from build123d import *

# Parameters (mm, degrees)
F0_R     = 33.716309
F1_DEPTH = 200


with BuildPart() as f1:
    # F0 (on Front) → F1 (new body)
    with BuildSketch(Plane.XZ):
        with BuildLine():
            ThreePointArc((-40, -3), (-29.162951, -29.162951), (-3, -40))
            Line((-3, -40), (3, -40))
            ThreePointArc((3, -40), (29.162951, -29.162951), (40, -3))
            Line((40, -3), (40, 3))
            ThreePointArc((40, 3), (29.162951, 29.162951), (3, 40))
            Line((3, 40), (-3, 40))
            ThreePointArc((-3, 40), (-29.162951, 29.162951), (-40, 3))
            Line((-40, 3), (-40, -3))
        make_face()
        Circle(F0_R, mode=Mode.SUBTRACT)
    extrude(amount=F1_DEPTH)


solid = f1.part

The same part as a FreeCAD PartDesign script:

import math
import FreeCAD as App
import Part
import Sketcher
from FreeCAD import Vector

doc = App.newDocument("Part")
body = doc.addObject("PartDesign::Body", "Body")

sketch1 = doc.addObject("Sketcher::SketchObject", "Sketch")
body.addObject(sketch1)
sketch1.AttachmentSupport = (doc.XZ_Plane, [""])
sketch1.MapMode = "FlatFace"
sketch1.addGeometry([
    Part.ArcOfCircle(Part.Circle(Vector(-3, -3, 0), Vector(0, 0, 1), 37), math.radians(180), math.radians(270)),
    Part.LineSegment(Vector(-3, -40, 0), Vector(3, -40, 0)),
    Part.ArcOfCircle(Part.Circle(Vector(3, -3, 0), Vector(0, 0, 1), 37), math.radians(-90), math.radians(0)),
    Part.LineSegment(Vector(40, -3, 0), Vector(40, 3, 0)),
    Part.ArcOfCircle(Part.Circle(Vector(3, 3, 0), Vector(0, 0, 1), 37), math.radians(0), math.radians(90)),
    Part.LineSegment(Vector(3, 40, 0), Vector(-3, 40, 0)),
    Part.ArcOfCircle(Part.Circle(Vector(-3, 3, 0), Vector(0, 0, 1), 37), math.radians(90), math.radians(180)),
    Part.LineSegment(Vector(-40, 3, 0), Vector(-40, -3, 0)),
    Part.Circle(Vector(0, 0, 0), Vector(0, 0, 1), 34),
], False)
sketch1.addConstraint([
    Sketcher.Constraint("Tangent", 0, 2, 1, 1),
    Sketcher.Constraint("Tangent", 1, 2, 2, 1),
    Sketcher.Constraint("Tangent", 2, 2, 3, 1),
    Sketcher.Constraint("Tangent", 3, 2, 4, 1),
    Sketcher.Constraint("Tangent", 4, 2, 5, 1),
    Sketcher.Constraint("Tangent", 5, 2, 6, 1),
    Sketcher.Constraint("Tangent", 6, 2, 7, 1),
    Sketcher.Constraint("Tangent", 7, 2, 0, 1),
    Sketcher.Constraint("Horizontal", 1),
    Sketcher.Constraint("Vertical", 3),
    Sketcher.Constraint("Horizontal", 5),
    Sketcher.Constraint("Vertical", 7),
    Sketcher.Constraint("Coincident", 8, 3, -1, 1),
    Sketcher.Constraint("Equal", 0, 2),
    Sketcher.Constraint("Equal", 2, 4),
    Sketcher.Constraint("Equal", 4, 6),
    Sketcher.Constraint("Symmetric", 0, 3, 4, 3, -1, 1),
    Sketcher.Constraint("Equal", 5, 3),
    Sketcher.Constraint("Radius", 0, 37.0),
    Sketcher.Constraint("DistanceX", 1, 1, 1, 2, 6.0),
    Sketcher.Constraint("Diameter", 8, 67.432618),
])
pad1 = doc.addObject("PartDesign::Pad", "Pad")
body.addObject(pad1)
pad1.Profile = sketch1
pad1.Length = 200

doc.recompute()
